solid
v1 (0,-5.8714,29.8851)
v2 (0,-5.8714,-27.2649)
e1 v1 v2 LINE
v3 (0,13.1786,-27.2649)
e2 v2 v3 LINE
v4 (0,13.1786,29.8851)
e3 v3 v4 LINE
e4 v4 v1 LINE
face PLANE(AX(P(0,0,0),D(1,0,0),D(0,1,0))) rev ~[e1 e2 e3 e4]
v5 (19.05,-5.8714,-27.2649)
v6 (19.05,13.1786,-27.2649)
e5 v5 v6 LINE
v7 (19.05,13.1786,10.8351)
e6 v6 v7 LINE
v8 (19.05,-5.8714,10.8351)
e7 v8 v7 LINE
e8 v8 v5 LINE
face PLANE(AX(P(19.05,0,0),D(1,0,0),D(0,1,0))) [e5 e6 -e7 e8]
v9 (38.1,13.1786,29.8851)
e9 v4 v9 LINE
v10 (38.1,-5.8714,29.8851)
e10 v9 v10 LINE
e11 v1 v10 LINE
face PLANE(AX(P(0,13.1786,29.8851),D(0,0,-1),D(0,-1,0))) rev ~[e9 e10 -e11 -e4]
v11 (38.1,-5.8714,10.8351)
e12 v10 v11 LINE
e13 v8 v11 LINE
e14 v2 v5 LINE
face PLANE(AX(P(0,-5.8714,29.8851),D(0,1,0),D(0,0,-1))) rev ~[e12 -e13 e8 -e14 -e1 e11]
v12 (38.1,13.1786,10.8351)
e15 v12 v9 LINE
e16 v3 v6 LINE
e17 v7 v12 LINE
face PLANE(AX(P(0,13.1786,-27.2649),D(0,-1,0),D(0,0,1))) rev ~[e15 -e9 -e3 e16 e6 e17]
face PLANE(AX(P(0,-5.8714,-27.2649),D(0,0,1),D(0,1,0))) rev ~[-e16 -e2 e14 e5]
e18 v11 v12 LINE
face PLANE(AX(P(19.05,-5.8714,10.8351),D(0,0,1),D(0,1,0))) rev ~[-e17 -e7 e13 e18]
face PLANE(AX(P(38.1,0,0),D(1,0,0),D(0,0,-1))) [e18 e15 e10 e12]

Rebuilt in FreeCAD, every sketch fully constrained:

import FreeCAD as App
import Part
import Sketcher
Q = App.Units.Quantity

doc = App.newDocument("Part")
params = doc.addObject("Spreadsheet::Sheet", "Params")
for row, (alias, value) in enumerate([
    ("sketch1_width", "0.75 in"),
    ("sketch1_height", "2.25 in"),
    ("pad1_length", "0.75 in"),
    ("sketch2_width", "0.75 in"),
    ("pad2_length", "0.75 in"),
], start=1):
    params.set(f"A{row}", alias)
    params.set(f"B{row}", "=" + value)
    params.setAlias(f"B{row}", alias)

body = doc.addObject("PartDesign::Body", "Body")

sketch1 = doc.addObject("Sketcher::SketchObject", "Sketch")
body.addObject(sketch1)
sketch1.AttachmentSupport = (doc.YZ_Plane, [""])
sketch1.MapMode = "FlatFace"
sketch1.addGeometry(Part.LineSegment(App.Vector(13.1786, -27.2649, 0), App.Vector(13.1786, 29.8851, 0)), False)
sketch1.addGeometry(Part.LineSegment(App.Vector(13.1786, 29.8851, 0), App.Vector(-5.8714, 29.8851, 0)), False)
sketch1.addGeometry(Part.LineSegment(App.Vector(-5.8714, 29.8851, 0), App.Vector(-5.8714, -27.2649, 0)), False)
sketch1.addGeometry(Part.LineSegment(App.Vector(-5.8714, -27.2649, 0), App.Vector(13.1786, -27.2649, 0)), False)
sketch1.addConstraint(Sketcher.Constraint("Coincident", 0, 2, 1, 1))
sketch1.addConstraint(Sketcher.Constraint("Coincident", 1, 2, 2, 1))
sketch1.addConstraint(Sketcher.Constraint("Coincident", 2, 2, 3, 1))
sketch1.addConstraint(Sketcher.Constraint("Coincident", 3, 2, 0, 1))
sketch1.addConstraint(Sketcher.Constraint("Vertical", 0))
sketch1.addConstraint(Sketcher.Constraint("Horizontal", 1))
sketch1.addConstraint(Sketcher.Constraint("Vertical", 2))
sketch1.addConstraint(Sketcher.Constraint("Horizontal", 3))
sketch1.addConstraint(Sketcher.Constraint("DistanceX", 1, 2, 1, 1, Q("0.75 in")))
sketch1.addConstraint(Sketcher.Constraint("DistanceY", 0, 1, 0, 2, Q("2.25 in")))
sketch1.addConstraint(Sketcher.Constraint("DistanceX", -1, 1, 0, 2, Q("13.1786 mm")))
sketch1.addConstraint(Sketcher.Constraint("DistanceY", -1, 1, 0, 2, Q("29.885 mm")))
sketch1.setExpression("Constraints[8]", "Params.sketch1_width")
sketch1.setExpression("Constraints[9]", "Params.sketch1_height")
pad1 = doc.addObject("PartDesign::Pad", "Pad")
body.addObject(pad1)
pad1.Profile = sketch1
pad1.setExpression("Length", "Params.pad1_length")

sketch2 = doc.addObject("Sketcher::SketchObject", "Sketch001")
body.addObject(sketch2)
sketch2.AttachmentSupport = (doc.YZ_Plane, [""])
sketch2.MapMode = "FlatFace"
sketch2.AttachmentOffset = App.Placement(App.Vector(0, 0, 0.75 * 25.4), App.Rotation())
sketch2.addGeometry(Part.LineSegment(App.Vector(13.1786, 10.8351, 0), App.Vector(13.1786, 29.8851, 0)), False)
sketch2.addGeometry(Part.LineSegment(App.Vector(13.1786, 29.8851, 0), App.Vector(-5.8714, 29.8851, 0)), False)
sketch2.addGeometry(Part.LineSegment(App.Vector(-5.8714, 29.8851, 0), App.Vector(-5.8714, 10.8351, 0)), False)
sketch2.addGeometry(Part.LineSegment(App.Vector(-5.8714, 10.8351, 0), App.Vector(13.1786, 10.8351, 0)), False)
sketch2.addConstraint(Sketcher.Constraint("Coincident", 0, 2, 1, 1))
sketch2.addConstraint(Sketcher.Constraint("Coincident", 1, 2, 2, 1))
sketch2.addConstraint(Sketcher.Constraint("Coincident", 2, 2, 3, 1))
sketch2.addConstraint(Sketcher.Constraint("Coincident", 3, 2, 0, 1))
sketch2.addConstraint(Sketcher.Constraint("Vertical", 0))
sketch2.addConstraint(Sketcher.Constraint("Horizontal", 1))
sketch2.addConstraint(Sketcher.Constraint("Vertical", 2))
sketch2.addConstraint(Sketcher.Constraint("Horizontal", 3))
sketch2.addConstraint(Sketcher.Constraint("Equal", 3, 0))
sketch2.addConstraint(Sketcher.Constraint("DistanceX", 1, 2, 1, 1, Q("0.75 in")))
sketch2.addConstraint(Sketcher.Constraint("DistanceX", -1, 1, 0, 2, Q("13.1786 mm")))
sketch2.addConstraint(Sketcher.Constraint("DistanceY", -1, 1, 0, 2, Q("29.885 mm")))
sketch2.setExpression("Constraints[9]", "Params.sketch2_width")
pad2 = doc.addObject("PartDesign::Pad", "Pad001")
body.addObject(pad2)
pad2.Profile = sketch2
pad2.setExpression("Length", "Params.pad2_length")

doc.recompute()
